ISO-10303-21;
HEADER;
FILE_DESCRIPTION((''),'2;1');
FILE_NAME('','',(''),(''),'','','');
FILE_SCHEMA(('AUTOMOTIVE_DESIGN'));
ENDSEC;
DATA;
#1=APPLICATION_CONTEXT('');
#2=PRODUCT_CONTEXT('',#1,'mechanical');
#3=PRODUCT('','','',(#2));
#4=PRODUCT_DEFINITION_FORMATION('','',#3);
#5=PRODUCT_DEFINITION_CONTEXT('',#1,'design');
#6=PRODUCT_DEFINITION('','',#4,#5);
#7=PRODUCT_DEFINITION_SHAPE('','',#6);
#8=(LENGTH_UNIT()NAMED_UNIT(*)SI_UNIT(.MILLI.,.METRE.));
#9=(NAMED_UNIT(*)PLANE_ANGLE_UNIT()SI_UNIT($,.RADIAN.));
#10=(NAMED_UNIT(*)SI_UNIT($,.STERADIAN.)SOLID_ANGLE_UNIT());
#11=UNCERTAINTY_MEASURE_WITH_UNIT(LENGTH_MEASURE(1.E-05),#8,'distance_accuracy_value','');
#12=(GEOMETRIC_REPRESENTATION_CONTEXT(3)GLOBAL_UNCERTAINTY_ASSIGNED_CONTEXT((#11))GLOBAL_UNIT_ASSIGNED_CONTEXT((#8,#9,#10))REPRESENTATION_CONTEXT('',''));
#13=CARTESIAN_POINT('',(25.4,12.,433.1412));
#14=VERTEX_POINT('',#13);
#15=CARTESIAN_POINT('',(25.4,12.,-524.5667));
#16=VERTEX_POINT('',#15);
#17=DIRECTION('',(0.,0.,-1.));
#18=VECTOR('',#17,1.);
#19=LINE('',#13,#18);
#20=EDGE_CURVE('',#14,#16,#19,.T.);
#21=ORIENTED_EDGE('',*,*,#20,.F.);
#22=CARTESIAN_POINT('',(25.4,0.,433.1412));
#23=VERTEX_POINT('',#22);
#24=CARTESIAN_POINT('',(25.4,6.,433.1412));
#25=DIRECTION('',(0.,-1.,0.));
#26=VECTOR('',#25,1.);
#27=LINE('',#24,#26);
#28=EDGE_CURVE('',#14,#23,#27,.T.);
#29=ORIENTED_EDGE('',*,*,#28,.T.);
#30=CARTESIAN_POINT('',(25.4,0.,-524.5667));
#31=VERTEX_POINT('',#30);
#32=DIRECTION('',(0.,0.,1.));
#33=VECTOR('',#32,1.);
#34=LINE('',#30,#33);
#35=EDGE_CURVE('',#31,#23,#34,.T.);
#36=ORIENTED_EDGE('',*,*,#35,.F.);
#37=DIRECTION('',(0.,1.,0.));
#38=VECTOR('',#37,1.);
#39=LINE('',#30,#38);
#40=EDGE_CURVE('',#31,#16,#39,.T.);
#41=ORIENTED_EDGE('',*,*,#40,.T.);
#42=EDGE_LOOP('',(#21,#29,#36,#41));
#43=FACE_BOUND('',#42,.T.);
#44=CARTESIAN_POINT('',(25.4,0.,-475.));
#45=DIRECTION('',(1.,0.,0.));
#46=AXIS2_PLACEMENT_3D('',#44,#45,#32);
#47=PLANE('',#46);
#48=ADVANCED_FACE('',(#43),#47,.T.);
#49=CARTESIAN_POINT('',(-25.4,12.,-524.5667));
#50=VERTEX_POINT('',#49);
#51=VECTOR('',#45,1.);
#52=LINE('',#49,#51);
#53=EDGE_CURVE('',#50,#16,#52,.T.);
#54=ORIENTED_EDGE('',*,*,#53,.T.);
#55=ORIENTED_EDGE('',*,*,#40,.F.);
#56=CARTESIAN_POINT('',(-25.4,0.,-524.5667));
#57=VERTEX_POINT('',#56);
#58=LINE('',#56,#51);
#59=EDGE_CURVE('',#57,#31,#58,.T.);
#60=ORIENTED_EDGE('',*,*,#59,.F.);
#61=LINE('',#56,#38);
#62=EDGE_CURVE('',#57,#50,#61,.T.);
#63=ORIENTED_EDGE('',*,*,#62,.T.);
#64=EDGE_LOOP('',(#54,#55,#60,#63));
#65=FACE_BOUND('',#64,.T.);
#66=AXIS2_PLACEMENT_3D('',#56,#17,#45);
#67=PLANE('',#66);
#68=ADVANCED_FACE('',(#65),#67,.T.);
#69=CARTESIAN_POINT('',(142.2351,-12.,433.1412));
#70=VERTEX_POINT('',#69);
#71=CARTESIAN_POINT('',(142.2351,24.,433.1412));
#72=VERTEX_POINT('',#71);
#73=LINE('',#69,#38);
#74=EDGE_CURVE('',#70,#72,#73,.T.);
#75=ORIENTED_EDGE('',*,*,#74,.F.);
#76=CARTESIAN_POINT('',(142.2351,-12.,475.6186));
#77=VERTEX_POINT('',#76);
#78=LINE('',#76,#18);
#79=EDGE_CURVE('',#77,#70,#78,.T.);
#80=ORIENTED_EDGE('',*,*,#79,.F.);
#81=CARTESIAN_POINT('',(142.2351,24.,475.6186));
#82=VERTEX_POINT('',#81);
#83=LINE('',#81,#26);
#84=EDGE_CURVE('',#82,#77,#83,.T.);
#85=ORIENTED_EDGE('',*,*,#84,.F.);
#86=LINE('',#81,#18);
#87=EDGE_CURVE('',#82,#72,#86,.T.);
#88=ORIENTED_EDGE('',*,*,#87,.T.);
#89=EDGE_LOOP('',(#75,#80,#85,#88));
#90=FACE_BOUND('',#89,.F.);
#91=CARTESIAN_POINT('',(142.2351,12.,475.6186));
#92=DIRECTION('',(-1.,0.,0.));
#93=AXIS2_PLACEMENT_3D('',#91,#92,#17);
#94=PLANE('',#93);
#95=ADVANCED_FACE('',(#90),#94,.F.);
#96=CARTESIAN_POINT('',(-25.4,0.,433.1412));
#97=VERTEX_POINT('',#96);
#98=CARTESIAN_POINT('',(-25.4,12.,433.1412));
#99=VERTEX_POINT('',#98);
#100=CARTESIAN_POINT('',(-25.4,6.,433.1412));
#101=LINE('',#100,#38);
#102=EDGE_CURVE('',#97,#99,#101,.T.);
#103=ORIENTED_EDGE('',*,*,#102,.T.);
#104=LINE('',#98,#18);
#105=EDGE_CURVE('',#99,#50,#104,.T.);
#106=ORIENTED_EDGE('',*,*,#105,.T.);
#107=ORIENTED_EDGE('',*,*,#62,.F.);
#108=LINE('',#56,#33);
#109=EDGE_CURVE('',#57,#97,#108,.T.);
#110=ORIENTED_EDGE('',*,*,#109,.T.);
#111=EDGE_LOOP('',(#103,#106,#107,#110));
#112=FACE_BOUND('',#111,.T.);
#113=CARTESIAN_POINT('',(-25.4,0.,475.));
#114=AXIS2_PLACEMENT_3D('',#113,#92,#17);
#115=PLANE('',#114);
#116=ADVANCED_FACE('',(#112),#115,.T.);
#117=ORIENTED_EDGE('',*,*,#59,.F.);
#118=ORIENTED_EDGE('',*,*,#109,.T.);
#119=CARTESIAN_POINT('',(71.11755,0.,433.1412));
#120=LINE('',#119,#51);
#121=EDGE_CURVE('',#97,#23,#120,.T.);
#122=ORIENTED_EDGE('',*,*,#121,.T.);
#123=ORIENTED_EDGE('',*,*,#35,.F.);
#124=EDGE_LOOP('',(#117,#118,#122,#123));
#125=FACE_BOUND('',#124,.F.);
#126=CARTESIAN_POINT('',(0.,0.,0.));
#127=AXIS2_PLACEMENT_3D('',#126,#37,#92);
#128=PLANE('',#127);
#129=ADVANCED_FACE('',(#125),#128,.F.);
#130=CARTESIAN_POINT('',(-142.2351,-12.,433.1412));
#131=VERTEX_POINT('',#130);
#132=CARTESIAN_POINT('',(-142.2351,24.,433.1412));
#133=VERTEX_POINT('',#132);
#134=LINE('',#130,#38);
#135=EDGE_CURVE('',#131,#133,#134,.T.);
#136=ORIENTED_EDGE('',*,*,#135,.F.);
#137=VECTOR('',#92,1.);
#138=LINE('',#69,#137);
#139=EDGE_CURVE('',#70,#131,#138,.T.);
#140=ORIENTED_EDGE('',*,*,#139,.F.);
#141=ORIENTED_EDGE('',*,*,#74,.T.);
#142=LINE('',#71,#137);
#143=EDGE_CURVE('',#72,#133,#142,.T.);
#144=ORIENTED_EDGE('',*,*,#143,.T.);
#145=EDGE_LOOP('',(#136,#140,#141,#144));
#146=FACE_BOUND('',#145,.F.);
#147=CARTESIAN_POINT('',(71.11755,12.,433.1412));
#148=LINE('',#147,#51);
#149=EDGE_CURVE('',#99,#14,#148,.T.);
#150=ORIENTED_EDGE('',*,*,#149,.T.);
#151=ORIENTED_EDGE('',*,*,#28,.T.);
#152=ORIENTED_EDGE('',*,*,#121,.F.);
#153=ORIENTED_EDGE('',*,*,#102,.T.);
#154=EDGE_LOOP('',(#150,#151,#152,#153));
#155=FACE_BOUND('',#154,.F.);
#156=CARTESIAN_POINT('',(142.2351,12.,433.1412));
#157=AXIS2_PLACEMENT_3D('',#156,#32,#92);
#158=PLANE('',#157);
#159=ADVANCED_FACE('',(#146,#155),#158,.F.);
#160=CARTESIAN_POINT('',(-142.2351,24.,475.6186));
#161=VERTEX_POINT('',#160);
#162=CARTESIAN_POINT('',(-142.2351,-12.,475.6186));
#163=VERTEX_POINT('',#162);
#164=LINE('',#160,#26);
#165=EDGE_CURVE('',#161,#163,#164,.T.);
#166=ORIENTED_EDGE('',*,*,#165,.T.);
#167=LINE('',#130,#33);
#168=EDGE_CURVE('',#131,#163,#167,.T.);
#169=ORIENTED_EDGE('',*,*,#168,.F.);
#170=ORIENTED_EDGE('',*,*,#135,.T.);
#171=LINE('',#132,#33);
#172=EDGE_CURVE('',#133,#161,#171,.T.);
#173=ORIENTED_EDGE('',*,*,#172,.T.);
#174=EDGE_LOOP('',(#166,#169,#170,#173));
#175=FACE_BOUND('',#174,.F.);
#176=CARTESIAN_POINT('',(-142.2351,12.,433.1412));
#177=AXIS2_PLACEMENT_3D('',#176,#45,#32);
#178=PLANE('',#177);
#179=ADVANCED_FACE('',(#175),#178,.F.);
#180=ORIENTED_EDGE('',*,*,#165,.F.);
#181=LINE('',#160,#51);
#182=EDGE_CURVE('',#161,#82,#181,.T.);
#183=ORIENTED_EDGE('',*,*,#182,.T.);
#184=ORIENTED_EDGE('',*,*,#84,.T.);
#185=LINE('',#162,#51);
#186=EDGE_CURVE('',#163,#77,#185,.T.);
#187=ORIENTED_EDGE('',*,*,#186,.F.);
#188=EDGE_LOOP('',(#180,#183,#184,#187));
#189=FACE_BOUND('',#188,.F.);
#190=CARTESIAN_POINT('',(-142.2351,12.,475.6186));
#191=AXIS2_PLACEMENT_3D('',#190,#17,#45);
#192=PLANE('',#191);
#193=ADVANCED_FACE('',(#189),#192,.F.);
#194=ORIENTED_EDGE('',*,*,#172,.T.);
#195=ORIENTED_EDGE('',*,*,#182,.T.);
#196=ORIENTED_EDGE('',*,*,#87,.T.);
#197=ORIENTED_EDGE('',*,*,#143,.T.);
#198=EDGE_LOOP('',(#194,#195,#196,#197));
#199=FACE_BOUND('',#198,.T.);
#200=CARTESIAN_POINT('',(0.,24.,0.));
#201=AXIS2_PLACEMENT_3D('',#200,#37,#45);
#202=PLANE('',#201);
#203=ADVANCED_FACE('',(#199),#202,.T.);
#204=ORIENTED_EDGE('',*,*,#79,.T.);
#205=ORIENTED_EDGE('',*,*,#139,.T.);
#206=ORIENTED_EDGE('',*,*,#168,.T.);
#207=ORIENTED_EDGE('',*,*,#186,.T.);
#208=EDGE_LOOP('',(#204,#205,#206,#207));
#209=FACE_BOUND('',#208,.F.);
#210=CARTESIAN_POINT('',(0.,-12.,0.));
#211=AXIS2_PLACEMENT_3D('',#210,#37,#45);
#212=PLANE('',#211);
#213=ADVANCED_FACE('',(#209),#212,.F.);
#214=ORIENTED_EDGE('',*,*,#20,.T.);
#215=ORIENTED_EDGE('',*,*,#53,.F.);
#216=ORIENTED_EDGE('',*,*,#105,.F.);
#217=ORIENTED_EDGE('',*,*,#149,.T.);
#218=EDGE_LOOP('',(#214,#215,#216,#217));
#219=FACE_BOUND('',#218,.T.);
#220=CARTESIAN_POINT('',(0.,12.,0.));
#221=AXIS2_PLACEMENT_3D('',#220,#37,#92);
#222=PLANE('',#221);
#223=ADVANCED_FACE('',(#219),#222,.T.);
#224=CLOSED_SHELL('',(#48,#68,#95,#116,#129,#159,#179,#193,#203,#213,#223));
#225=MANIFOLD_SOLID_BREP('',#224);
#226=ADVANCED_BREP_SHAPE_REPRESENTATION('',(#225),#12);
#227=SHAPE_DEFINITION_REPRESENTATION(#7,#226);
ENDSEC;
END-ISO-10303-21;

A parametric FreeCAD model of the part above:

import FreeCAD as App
import Part
import Sketcher

doc = App.newDocument("Part")
body = doc.addObject("PartDesign::Body", "Body")

sketch1 = doc.addObject("Sketcher::SketchObject", "Sketch")
body.addObject(sketch1)
sketch1.AttachmentSupport = (doc.XZ_Plane, [""])
sketch1.MapMode = "FlatFace"
sketch1.addGeometry([
    Part.LineSegment(App.Vector(25.4, -475, 0), App.Vector(-25.4, -475, 0)),
    Part.LineSegment(App.Vector(-25.4, -475, 0), App.Vector(-25.4, 475, 0)),
    Part.LineSegment(App.Vector(-25.4, 475, 0), App.Vector(25.4, 475, 0)),
    Part.LineSegment(App.Vector(25.4, 475, 0), App.Vector(25.4, -475, 0)),
], False)
sketch1.addConstraint([
    Sketcher.Constraint("Coincident", 0, 2, 1, 1),
    Sketcher.Constraint("Coincident", 1, 2, 2, 1),
    Sketcher.Constraint("Coincident", 2, 2, 3, 1),
    Sketcher.Constraint("Coincident", 3, 2, 0, 1),
    Sketcher.Constraint("Horizontal", 0),
    Sketcher.Constraint("Vertical", 1),
    Sketcher.Constraint("Horizontal", 2),
    Sketcher.Constraint("Vertical", 3),
    Sketcher.Constraint("Symmetric", 0, 2, 2, 2, -1, 1),
    Sketcher.Constraint("DistanceY", 1, 1, 1, 2, 950.0),
    Sketcher.Constraint("DistanceX", 0, 2, 0, 1, 50.8),
])
pad1 = doc.addObject("PartDesign::Pad", "Pad")
body.addObject(pad1)
pad1.Profile = sketch1
pad1.Length = 12
pad1.Reversed = True

sketch2 = doc.addObject("Sketcher::SketchObject", "Sketch001")
body.addObject(sketch2)
sketch2.AttachmentSupport = (doc.XZ_Plane, [""])
sketch2.MapMode = "FlatFace"
sketch2.AttachmentOffset = App.Placement(App.Vector(0, 0, -12), App.Rotation())
sketch2.addGeometry([
    Part.LineSegment(App.Vector(142.2351, 475.6186, 0), App.Vector(142.2351, 433.1412, 0)),
    Part.LineSegment(App.Vector(142.2351, 433.1412, 0), App.Vector(-142.2351, 433.1412, 0)),
    Part.LineSegment(App.Vector(-142.2351, 433.1412, 0), App.Vector(-142.2351, 475.6186, 0)),
    Part.LineSegment(App.Vector(-142.2351, 475.6186, 0), App.Vector(142.2351, 475.6186, 0)),
], False)
sketch2.addConstraint([
    Sketcher.Constraint("Coincident", 0, 2, 1, 1),
    Sketcher.Constraint("Coincident", 1, 2, 2, 1),
    Sketcher.Constraint("Coincident", 2, 2, 3, 1),
    Sketcher.Constraint("Coincident", 3, 2, 0, 1),
    Sketcher.Constraint("Vertical", 0),
    Sketcher.Constraint("Horizontal", 1),
    Sketcher.Constraint("Vertical", 2),
    Sketcher.Constraint("Horizontal", 3),
    Sketcher.Constraint("DistanceX", 1, 2, 1, 1, 284.4702),
    Sketcher.Constraint("DistanceY", 0, 2, 0, 1, 42.4774),
    Sketcher.Constraint("DistanceX", -1, 1, 0, 2, 142.235),
    Sketcher.Constraint("DistanceY", -1, 1, 0, 2, 433.1412),
])
pad2 = doc.addObject("PartDesign::Pad", "Pad001")
body.addObject(pad2)
pad2.Profile = sketch2
pad2.Type = "TwoLengths"
pad2.Length = 12
pad2.Length2 = 24
pad2.Reversed = True

sketch3 = doc.addObject("Sketcher::SketchObject", "Sketch002")
body.addObject(sketch3)
sketch3.AttachmentSupport = (doc.XZ_Plane, [""])
sketch3.MapMode = "FlatFace"
sketch3.AttachmentOffset = App.Placement(App.Vector(0, 0, -12), App.Rotation())
sketch3.addGeometry([
    Part.LineSegment(App.Vector(344.254, -621.7865, 0), App.Vector(-638.112, -621.7865, 0)),
    Part.LineSegment(App.Vector(-638.112, -621.7865, 0), App.Vector(-638.112, -342.1246, 0)),
    Part.LineSegment(App.Vector(-638.112, -342.1246, 0), App.Vector(344.254, -342.1246, 0)),
    Part.LineSegment(App.Vector(344.254, -342.1246, 0), App.Vector(344.254, -621.7865, 0)),
], False)
sketch3.addConstraint([
    Sketcher.Constraint("Coincident", 0, 2, 1, 1),
    Sketcher.Constraint("Coincident", 1, 2, 2, 1),
    Sketcher.Constraint("Coincident", 2, 2, 3, 1),
    Sketcher.Constraint("Coincident", 3, 2, 0, 1),
    Sketcher.Constraint("Horizontal", 0),
    Sketcher.Constraint("Vertical", 1),
    Sketcher.Constraint("Horizontal", 2),
    Sketcher.Constraint("Vertical", 3),
    Sketcher.Constraint("DistanceX", 0, 2, 0, 1, 982.366),
    Sketcher.Constraint("DistanceY", 1, 1, 1, 2, 279.662),
    Sketcher.Constraint("DistanceX", 0, 2, -1, 1, 638.112),
    Sketcher.Constraint("DistanceY", 0, 2, -1, 1, 621.7865),
])
pocket1 = doc.addObject("PartDesign::Pocket", "Pocket")
body.addObject(pocket1)
pocket1.Profile = sketch3
pocket1.Type = "ThroughAll"
pocket1.Midplane = True

sketch4 = doc.addObject("Sketcher::SketchObject", "Sketch003")
body.addObject(sketch4)
sketch4.AttachmentSupport = (doc.XZ_Plane, [""])
sketch4.MapMode = "FlatFace"
sketch4.AttachmentOffset = App.Placement(App.Vector(0, 0, -12), App.Rotation())
sketch4.addGeometry([
    Part.LineSegment(App.Vector(80.2076, -578.4886, 0), App.Vector(-80.2076, -578.4886, 0)),
    Part.LineSegment(App.Vector(-80.2076, -578.4886, 0), App.Vector(-80.2076, -185.2583, 0)),
    Part.LineSegment(App.Vector(-80.2076, -185.2583, 0), App.Vector(80.2076, -185.2583, 0)),
    Part.LineSegment(App.Vector(80.2076, -185.2583, 0), App.Vector(80.2076, -578.4886, 0)),
], False)
sketch4.addConstraint([
    Sketcher.Constraint("Coincident", 0, 2, 1, 1),
    Sketcher.Constraint("Coincident", 1, 2, 2, 1),
    Sketcher.Constraint("Coincident", 2, 2, 3, 1),
    Sketcher.Constraint("Coincident", 3, 2, 0, 1),
    Sketcher.Constraint("Horizontal", 0),
    Sketcher.Constraint("Vertical", 1),
    Sketcher.Constraint("Horizontal", 2),
    Sketcher.Constraint("Vertical", 3),
    Sketcher.Constraint("DistanceX", 0, 2, 0, 1, 160.4152),
    Sketcher.Constraint("DistanceY", 1, 1, 1, 2, 393.2303),
    Sketcher.Constraint("DistanceX", 0, 2, -1, 1, 80.2076),
    Sketcher.Constraint("DistanceY", 0, 2, -1, 1, 578.4886),
])
pocket2 = doc.addObject("PartDesign::Pocket", "Pocket001")
body.addObject(pocket2)
pocket2.Profile = sketch4
pocket2.Length = 304.8
pocket2.Reversed = True

sketch5 = doc.addObject("Sketcher::SketchObject", "Sketch004")
body.addObject(sketch5)
sketch5.AttachmentSupport = (doc.XZ_Plane, [""])
sketch5.MapMode = "FlatFace"
sketch5.addGeometry([
    Part.LineSegment(App.Vector(-25.4, 475.4333, 0), App.Vector(25.4, 475.4333, 0)),
    Part.LineSegment(App.Vector(25.4, 475.4333, 0), App.Vector(25.4, -524.5667, 0)),
    Part.LineSegment(App.Vector(25.4, -524.5667, 0), App.Vector(-25.4, -524.5667, 0)),
    Part.LineSegment(App.Vector(-25.4, -524.5667, 0), App.Vector(-25.4, 475.4333, 0)),
], False)
sketch5.addConstraint([
    Sketcher.Constraint("Coincident", 0, 2, 1, 1),
    Sketcher.Constraint("Coincident", 1, 2, 2, 1),
    Sketcher.Constraint("Coincident", 2, 2, 3, 1),
    Sketcher.Constraint("Coincident", 3, 2, 0, 1),
    Sketcher.Constraint("Horizontal", 0),
    Sketcher.Constraint("Vertical", 1),
    Sketcher.Constraint("Horizontal", 2),
    Sketcher.Constraint("Vertical", 3),
    Sketcher.Constraint("DistanceY", 1, 2, 1, 1, 1000.0),
    Sketcher.Constraint("DistanceX", 0, 1, 0, 2, 50.8),
    Sketcher.Constraint("DistanceX", -1, 1, 0, 2, 25.4),
    Sketcher.Constraint("DistanceY", -1, 1, 0, 2, 475.4333),
])
pad3 = doc.addObject("PartDesign::Pad", "Pad002")
body.addObject(pad3)
pad3.Profile = sketch5
pad3.Length = 12
pad3.Reversed = True

doc.recompute()
